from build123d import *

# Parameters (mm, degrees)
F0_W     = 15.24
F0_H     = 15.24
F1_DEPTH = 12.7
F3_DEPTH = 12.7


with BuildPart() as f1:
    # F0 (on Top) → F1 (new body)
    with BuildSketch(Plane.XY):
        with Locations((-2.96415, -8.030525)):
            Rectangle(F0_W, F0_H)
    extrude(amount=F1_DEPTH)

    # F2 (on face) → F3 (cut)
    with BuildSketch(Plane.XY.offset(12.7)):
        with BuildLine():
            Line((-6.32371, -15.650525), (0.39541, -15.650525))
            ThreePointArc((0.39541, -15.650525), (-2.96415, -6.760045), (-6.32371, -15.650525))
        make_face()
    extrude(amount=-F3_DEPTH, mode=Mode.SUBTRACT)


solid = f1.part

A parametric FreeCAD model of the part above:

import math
import FreeCAD as App
import Part
import Sketcher
from FreeCAD import Vector
Q = App.Units.Quantity


def add_polygon(sketch, points):
    """Adds a closed chain of lines whose ends are joined by coincident constraints."""
    first, n = sketch.GeometryCount, len(points)
    for a, b in zip(points, points[1:] + points[:1]):
        sketch.addGeometry(Part.LineSegment(App.Vector(*a, 0), App.Vector(*b, 0)), False)
    for i in range(n):
        sketch.addConstraint(Sketcher.Constraint("Coincident", first + i, 2, first + (i + 1) % n, 1))

doc = App.newDocument("Part")
body = doc.addObject("PartDesign::Body", "Body")

# Sketch on XY plane
sketch1 = body.newObject("Sketcher::SketchObject", "Sketch")
sketch1.AttachmentSupport = (doc.getObject("XY_Plane"), [""])
sketch1.MapMode = "FlatFace"
add_polygon(sketch1, [(-11, 0), (-11, -16), (5, -16), (5, 0)])  # lines 0-3
sketch1.addConstraint([
    Sketcher.Constraint("Vertical", 0),
    Sketcher.Constraint("Horizontal", 1),
    Sketcher.Constraint("Vertical", 2),
    Sketcher.Constraint("Horizontal", 3),
    Sketcher.Constraint("Equal", 3, 0),
    Sketcher.Constraint("DistanceX", 1, 1, 1, 2, Q("0.6 in")),
    Sketcher.Constraint("DistanceX", 0, 2, -1, 1, Q("10.58415 mm")),
    Sketcher.Constraint("DistanceY", 0, 2, -1, 1, Q("15.650525 mm")),
])
pad1 = body.newObject("PartDesign::Pad", "Pad")
pad1.Profile = sketch1
pad1.Length = Q("0.5 in")

# Sketch on XY plane
sketch2 = body.newObject("Sketcher::SketchObject", "Sketch001")
sketch2.AttachmentSupport = (doc.getObject("XY_Plane"), [""])
sketch2.MapMode = "FlatFace"
sketch2.AttachmentOffset = App.Placement(Vector(0, 0, 0.5 * 25.4), App.Rotation())
sketch2.addGeometry([
    Part.LineSegment(Vector(-6, -16, 0), Vector(0, -16, 0)),
    Part.ArcOfCircle(Part.Circle(Vector(-3, -12, 0), Vector(0, 0, 1), 5), math.radians(-49), math.radians(229)),
], False)
sketch2.addConstraint([
    Sketcher.Constraint("Coincident", 0, 1, 1, 2),
    Sketcher.Constraint("Coincident", 1, 1, 0, 2),
    Sketcher.Constraint("Horizontal", 0),
    Sketcher.Constraint("Radius", 1, Q("0.2 in")),
    Sketcher.Constraint("DistanceX", 0, 1, 0, 2, Q("6.71912 mm")),
    Sketcher.Constraint("DistanceX", 1, 3, -1, 1, Q("2.96415 mm")),
    Sketcher.Constraint("DistanceY", 1, 3, -1, 1, Q("11.840045 mm")),
])
pocket1 = body.newObject("PartDesign::Pocket", "Pocket")
pocket1.Profile = sketch2
pocket1.Length = Q("0.5 in")

doc.recompute()
